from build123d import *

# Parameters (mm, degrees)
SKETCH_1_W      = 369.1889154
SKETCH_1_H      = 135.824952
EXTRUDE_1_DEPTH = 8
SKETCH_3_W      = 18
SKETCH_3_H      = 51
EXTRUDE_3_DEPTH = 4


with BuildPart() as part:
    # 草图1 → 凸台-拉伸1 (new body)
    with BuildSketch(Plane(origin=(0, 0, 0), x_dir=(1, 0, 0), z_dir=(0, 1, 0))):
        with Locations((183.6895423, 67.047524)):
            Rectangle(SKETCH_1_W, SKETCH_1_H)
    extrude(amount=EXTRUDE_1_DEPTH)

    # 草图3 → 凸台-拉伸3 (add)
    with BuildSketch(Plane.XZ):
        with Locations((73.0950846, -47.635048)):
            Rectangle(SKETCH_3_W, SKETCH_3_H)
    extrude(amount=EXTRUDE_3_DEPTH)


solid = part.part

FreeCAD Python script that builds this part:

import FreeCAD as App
import Part
import Sketcher

V = App.Vector


def add_polygon(sketch, points):
    """Adds a closed chain of lines whose ends are joined by coincident constraints."""
    first, n = sketch.GeometryCount, len(points)
    for a, b in zip(points, points[1:] + points[:1]):
        sketch.addGeometry(Part.LineSegment(App.Vector(*a, 0), App.Vector(*b, 0)), False)
    for i in range(n):
        sketch.addConstraint(Sketcher.Constraint("Coincident", first + i, 2, first + (i + 1) % n, 1))

doc = App.newDocument("Part")
body = doc.addObject("PartDesign::Body", "Body")

sketch1 = doc.addObject("Sketcher::SketchObject", "Sketch")
body.addObject(sketch1)
sketch1.AttachmentSupport = (doc.XZ_Plane, [""])
sketch1.MapMode = "FlatFace"
add_polygon(sketch1, [(-0.904915, -134.96), (-0.904915, 0.864952), (368.284, 0.864952), (368.284, -134.96)])
sketch1.addConstraint(Sketcher.Constraint("Vertical", 0))
sketch1.addConstraint(Sketcher.Constraint("Horizontal", 1))
sketch1.addConstraint(Sketcher.Constraint("Vertical", 2))
sketch1.addConstraint(Sketcher.Constraint("Horizontal", 3))
sketch1.addConstraint(Sketcher.Constraint("DistanceY", 2, 2, -1, 1, 134.96))
sketch1.addConstraint(Sketcher.Constraint("DistanceX", -1, 1, 1, 2, 368.284))
sketch1.addConstraint(Sketcher.Constraint("DistanceY", 0, 1, 0, 2, 135.824952))
sketch1.addConstraint(Sketcher.Constraint("DistanceX", 1, 1, 1, 2, 369.188915))
pad1 = doc.addObject("PartDesign::Pad", "Pad")
body.addObject(pad1)
pad1.Profile = sketch1
pad1.Length = 8
pad1.Reversed = True

sketch2 = doc.addObject("Sketcher::SketchObject", "Sketch001")
body.addObject(sketch2)
sketch2.AttachmentSupport = (doc.XZ_Plane, [""])
sketch2.MapMode = "FlatFace"
add_polygon(sketch2, [(64.095085, -22.135048), (64.095085, -73.135048), (82.095085, -73.135048), (82.095085, -22.135048)])
sketch2.addConstraint(Sketcher.Constraint("Vertical", 0))
sketch2.addConstraint(Sketcher.Constraint("Horizontal", 1))
sketch2.addConstraint(Sketcher.Constraint("Vertical", 2))
sketch2.addConstraint(Sketcher.Constraint("Horizontal", 3))
sketch2.addConstraint(Sketcher.Constraint("DistanceX", 1, 1, 1, 2, 18.0))
sketch2.addConstraint(Sketcher.Constraint("DistanceY", 0, 2, 0, 1, 51.0))
sketch2.addConstraint(Sketcher.Constraint("DistanceY", 2, 2, -1, 1, 22.135048))
sketch2.addConstraint(Sketcher.Constraint("DistanceX", -1, 1, 0, 2, 64.095085))
pad2 = doc.addObject("PartDesign::Pad", "Pad001")
body.addObject(pad2)
pad2.Profile = sketch2
pad2.Length = 4

doc.recompute()
